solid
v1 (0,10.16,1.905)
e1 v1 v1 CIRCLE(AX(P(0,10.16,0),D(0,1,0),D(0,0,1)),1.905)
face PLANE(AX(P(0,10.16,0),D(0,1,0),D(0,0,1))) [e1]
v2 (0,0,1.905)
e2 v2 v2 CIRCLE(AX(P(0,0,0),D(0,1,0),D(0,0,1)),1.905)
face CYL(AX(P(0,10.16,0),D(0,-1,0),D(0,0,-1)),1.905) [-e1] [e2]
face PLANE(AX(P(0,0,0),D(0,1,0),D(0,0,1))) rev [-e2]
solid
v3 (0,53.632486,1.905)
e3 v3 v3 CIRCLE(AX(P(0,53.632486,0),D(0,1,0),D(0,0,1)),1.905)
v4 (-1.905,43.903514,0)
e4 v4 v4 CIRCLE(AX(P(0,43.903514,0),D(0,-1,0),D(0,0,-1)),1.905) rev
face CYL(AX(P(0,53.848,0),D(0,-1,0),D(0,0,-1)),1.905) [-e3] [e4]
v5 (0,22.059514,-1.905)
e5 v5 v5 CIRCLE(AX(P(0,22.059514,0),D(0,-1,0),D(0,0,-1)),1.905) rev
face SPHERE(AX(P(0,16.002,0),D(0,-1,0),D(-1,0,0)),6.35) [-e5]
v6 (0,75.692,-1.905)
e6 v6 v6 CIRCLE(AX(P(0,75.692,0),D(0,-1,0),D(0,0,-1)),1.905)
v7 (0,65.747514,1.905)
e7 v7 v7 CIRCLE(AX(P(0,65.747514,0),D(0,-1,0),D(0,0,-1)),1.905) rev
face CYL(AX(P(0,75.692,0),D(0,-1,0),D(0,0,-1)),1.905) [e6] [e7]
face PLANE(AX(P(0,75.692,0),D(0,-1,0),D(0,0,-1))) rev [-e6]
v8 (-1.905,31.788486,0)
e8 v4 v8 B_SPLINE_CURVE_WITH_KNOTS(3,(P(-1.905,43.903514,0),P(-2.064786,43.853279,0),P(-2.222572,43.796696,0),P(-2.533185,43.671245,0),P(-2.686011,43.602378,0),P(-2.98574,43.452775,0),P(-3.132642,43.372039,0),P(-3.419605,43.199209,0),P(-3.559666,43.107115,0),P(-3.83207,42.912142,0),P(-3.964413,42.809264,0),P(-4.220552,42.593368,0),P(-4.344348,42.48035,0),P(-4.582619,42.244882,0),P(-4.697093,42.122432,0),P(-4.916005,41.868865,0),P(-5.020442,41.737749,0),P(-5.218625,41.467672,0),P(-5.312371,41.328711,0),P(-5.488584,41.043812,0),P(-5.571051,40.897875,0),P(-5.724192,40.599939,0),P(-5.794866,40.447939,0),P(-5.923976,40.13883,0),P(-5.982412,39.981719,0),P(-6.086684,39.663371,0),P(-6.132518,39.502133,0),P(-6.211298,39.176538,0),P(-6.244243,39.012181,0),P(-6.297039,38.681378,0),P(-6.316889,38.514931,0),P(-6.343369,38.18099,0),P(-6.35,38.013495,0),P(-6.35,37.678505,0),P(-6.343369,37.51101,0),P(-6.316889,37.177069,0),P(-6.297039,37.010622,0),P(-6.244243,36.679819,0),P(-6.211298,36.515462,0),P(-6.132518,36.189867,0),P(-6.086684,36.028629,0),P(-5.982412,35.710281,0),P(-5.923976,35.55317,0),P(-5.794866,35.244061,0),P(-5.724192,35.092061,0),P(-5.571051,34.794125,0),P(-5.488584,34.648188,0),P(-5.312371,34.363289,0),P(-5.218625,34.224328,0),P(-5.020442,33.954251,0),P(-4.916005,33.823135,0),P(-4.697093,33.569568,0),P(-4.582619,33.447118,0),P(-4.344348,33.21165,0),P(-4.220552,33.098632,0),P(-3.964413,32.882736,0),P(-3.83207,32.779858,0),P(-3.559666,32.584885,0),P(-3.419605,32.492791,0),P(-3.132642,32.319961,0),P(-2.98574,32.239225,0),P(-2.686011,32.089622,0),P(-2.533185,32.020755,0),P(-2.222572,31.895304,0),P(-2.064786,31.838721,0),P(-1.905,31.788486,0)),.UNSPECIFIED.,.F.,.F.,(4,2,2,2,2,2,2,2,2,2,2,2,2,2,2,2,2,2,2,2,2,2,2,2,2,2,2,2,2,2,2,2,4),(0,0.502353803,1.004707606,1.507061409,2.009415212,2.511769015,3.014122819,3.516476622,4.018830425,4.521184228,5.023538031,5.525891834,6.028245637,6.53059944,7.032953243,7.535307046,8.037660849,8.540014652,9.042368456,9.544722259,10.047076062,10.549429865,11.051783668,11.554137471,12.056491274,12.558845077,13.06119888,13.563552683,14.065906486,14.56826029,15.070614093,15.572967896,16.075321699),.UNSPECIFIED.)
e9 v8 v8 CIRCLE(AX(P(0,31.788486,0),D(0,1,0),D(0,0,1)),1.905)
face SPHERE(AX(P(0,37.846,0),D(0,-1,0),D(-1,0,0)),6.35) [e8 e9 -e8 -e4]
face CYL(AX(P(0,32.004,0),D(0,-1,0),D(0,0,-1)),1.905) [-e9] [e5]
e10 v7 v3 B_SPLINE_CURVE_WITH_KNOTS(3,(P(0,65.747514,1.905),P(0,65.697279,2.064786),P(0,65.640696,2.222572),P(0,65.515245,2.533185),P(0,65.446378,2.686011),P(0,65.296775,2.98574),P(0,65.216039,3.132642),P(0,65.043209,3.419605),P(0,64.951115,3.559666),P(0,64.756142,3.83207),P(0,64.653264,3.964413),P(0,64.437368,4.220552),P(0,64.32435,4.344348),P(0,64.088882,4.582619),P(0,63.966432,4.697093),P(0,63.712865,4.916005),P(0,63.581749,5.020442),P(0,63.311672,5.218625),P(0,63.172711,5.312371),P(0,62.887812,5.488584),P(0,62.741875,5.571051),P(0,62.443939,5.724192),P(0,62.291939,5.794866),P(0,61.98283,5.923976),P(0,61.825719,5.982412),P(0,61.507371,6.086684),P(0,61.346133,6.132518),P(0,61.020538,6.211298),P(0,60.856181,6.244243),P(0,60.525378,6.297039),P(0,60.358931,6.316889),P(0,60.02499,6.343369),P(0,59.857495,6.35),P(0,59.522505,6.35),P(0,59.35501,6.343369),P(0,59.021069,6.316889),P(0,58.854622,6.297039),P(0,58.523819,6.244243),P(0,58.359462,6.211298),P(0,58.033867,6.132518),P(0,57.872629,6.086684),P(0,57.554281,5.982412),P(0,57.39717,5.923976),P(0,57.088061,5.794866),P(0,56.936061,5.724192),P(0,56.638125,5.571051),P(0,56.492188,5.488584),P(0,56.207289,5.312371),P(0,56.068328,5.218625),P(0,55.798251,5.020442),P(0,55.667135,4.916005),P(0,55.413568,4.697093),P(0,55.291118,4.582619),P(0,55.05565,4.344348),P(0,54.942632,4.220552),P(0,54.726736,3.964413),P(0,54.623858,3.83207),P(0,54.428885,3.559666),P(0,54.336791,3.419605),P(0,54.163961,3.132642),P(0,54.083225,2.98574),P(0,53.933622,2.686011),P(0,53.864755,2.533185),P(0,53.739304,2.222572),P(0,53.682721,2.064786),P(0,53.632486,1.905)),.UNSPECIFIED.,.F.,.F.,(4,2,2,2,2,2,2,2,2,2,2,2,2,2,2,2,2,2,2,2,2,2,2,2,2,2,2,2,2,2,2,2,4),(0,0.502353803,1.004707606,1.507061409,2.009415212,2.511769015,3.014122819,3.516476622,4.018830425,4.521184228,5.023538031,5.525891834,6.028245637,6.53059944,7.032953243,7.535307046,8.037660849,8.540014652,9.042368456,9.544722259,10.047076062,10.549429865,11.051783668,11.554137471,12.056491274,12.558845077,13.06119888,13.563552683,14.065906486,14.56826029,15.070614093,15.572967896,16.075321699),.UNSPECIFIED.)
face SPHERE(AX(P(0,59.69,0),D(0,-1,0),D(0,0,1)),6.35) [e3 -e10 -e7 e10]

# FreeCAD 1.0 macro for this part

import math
import FreeCAD as App
import Part
import Sketcher
from FreeCAD import Vector
Q = App.Units.Quantity

doc = App.newDocument("Part")
body = doc.addObject("PartDesign::Body", "Body")

# Sketch on XZ plane
sketch1 = body.newObject("Sketcher::SketchObject", "Sketch")
sketch1.AttachmentSupport = (doc.getObject("XZ_Plane"), [""])
sketch1.MapMode = "FlatFace"
sketch1.addGeometry(Part.Circle(Vector(0, 0, 0), Vector(0, 0, 1), 1.9), False)
sketch1.addConstraint([
    Sketcher.Constraint("Coincident", 0, 3, -1, 1),
    Sketcher.Constraint("Diameter", 0, Q("0.15 in")),
])
pad1 = body.newObject("PartDesign::Pad", "Pad")
pad1.Profile = sketch1
pad1.Length = Q("0.4 in")
pad1.Reversed = True
body2 = doc.addObject("PartDesign::Body", "Body001")

# Sketch on XY plane
sketch2 = body2.newObject("Sketcher::SketchObject", "Sketch001")
sketch2.AttachmentSupport = (doc.getObject("XY_Plane001"), [""])
sketch2.MapMode = "FlatFace"
sketch2.addGeometry([
    Part.LineSegment(Vector(0, 22, 0), Vector(0, 10, 0)),
    Part.ArcOfCircle(Part.Circle(Vector(0, 16, 0), Vector(0, 0, 1), 6), math.radians(-90), math.radians(90)),
], False)
sketch2.addConstraint([
    Sketcher.Constraint("Coincident", 0, 1, 1, 2),
    Sketcher.Constraint("Coincident", 1, 1, 0, 2),
    Sketcher.Constraint("Vertical", 0),
    Sketcher.Constraint("PointOnObject", 1, 3, -2),
    Sketcher.Constraint("PointOnObject", 0, 1, -2),
    Sketcher.Constraint("Radius", 1, Q("0.25 in")),
    Sketcher.Constraint("DistanceY", -1, 1, 1, 3, Q("0.63 in")),
])
revolution = body2.newObject("PartDesign::Revolution", "Revolution")
revolution.Profile = sketch2
revolution.ReferenceAxis = (sketch2, ["V_Axis"])
revolution.Angle = 360

# Sketch on XZ plane
sketch3 = body2.newObject("Sketcher::SketchObject", "Sketch002")
sketch3.AttachmentSupport = (doc.getObject("XZ_Plane001"), [""])
sketch3.MapMode = "FlatFace"
sketch3.AttachmentOffset = App.Placement(Vector(0, 0, -0.86 * 25.4), App.Rotation())
sketch3.addGeometry(Part.Circle(Vector(0, 0, 0), Vector(0, 0, 1), 1.9), False)
sketch3.addConstraint([
    Sketcher.Constraint("Coincident", 0, 3, -1, 1),
    Sketcher.Constraint("Diameter", 0, Q("0.15 in")),
])
pad2 = body2.newObject("PartDesign::Pad", "Pad001")
pad2.Profile = sketch3
pad2.Length = Q("0.4 in")
pad2.Reversed = True

# Sketch on XY plane
sketch4 = body2.newObject("Sketcher::SketchObject", "Sketch003")
sketch4.AttachmentSupport = (doc.getObject("XY_Plane001"), [""])
sketch4.MapMode = "FlatFace"
sketch4.addGeometry([
    Part.LineSegment(Vector(0, 44, 0), Vector(0, 31, 0)),
    Part.ArcOfCircle(Part.Circle(Vector(0, 38, 0), Vector(0, 0, 1), 6), math.radians(-90), math.radians(90)),
], False)
sketch4.addConstraint([
    Sketcher.Constraint("Coincident", 0, 1, 1, 2),
    Sketcher.Constraint("Coincident", 1, 1, 0, 2),
    Sketcher.Constraint("Vertical", 0),
    Sketcher.Constraint("PointOnObject", 1, 3, -2),
    Sketcher.Constraint("PointOnObject", 0, 1, -2),
    Sketcher.Constraint("Radius", 1, Q("0.25 in")),
    Sketcher.Constraint("DistanceY", -1, 1, 1, 3, Q("1.49 in")),
])
revolution2 = body2.newObject("PartDesign::Revolution", "Revolution001")
revolution2.Profile = sketch4
revolution2.ReferenceAxis = (sketch4, ["V_Axis"])
revolution2.Angle = 360

# Sketch on XZ plane
sketch5 = body2.newObject("Sketcher::SketchObject", "Sketch004")
sketch5.AttachmentSupport = (doc.getObject("XZ_Plane001"), [""])
sketch5.MapMode = "FlatFace"
sketch5.AttachmentOffset = App.Placement(Vector(0, 0, -1.72 * 25.4), App.Rotation())
sketch5.addGeometry(Part.Circle(Vector(0, 0, 0), Vector(0, 0, 1), 1.9), False)
sketch5.addConstraint([
    Sketcher.Constraint("Coincident", 0, 3, -1, 1),
    Sketcher.Constraint("Diameter", 0, Q("0.15 in")),
])
pad3 = body2.newObject("PartDesign::Pad", "Pad002")
pad3.Profile = sketch5
pad3.Length = Q("0.4 in")
pad3.Reversed = True

# Sketch on YZ plane
sketch6 = body2.newObject("Sketcher::SketchObject", "Sketch005")
sketch6.AttachmentSupport = (doc.getObject("YZ_Plane001"), [""])
sketch6.MapMode = "FlatFace"
sketch6.addGeometry([
    Part.LineSegment(Vector(66, 0, 0), Vector(53, 0, 0)),
    Part.ArcOfCircle(Part.Circle(Vector(60, 0, 0), Vector(0, 0, 1), 6), math.radians(180), math.radians(360)),
], False)
sketch6.addConstraint([
    Sketcher.Constraint("Coincident", 0, 1, 1, 2),
    Sketcher.Constraint("Coincident", 1, 1, 0, 2),
    Sketcher.Constraint("Horizontal", 0),
    Sketcher.Constraint("PointOnObject", 1, 3, -1),
    Sketcher.Constraint("PointOnObject", 0, 1, -1),
    Sketcher.Constraint("Radius", 1, Q("0.25 in")),
    Sketcher.Constraint("DistanceX", -1, 1, 0, 1, Q("2.6 in")),
])
revolution3 = body2.newObject("PartDesign::Revolution", "Revolution002")
revolution3.Profile = sketch6
revolution3.ReferenceAxis = (sketch6, ["H_Axis"])
revolution3.Angle = 360

# Sketch on XZ plane
sketch7 = body2.newObject("Sketcher::SketchObject", "Sketch006")
sketch7.AttachmentSupport = (doc.getObject("XZ_Plane001"), [""])
sketch7.MapMode = "FlatFace"
sketch7.AttachmentOffset = App.Placement(Vector(0, 0, -2.58 * 25.4), App.Rotation())
sketch7.addGeometry(Part.Circle(Vector(0, 0, 0), Vector(0, 0, 1), 1.9), False)
sketch7.addConstraint([
    Sketcher.Constraint("Coincident", 0, 3, -1, 1),
    Sketcher.Constraint("Diameter", 0, Q("0.15 in")),
])
pad4 = body2.newObject("PartDesign::Pad", "Pad003")
pad4.Profile = sketch7
pad4.Length = Q("0.4 in")
pad4.Reversed = True

doc.recompute()
